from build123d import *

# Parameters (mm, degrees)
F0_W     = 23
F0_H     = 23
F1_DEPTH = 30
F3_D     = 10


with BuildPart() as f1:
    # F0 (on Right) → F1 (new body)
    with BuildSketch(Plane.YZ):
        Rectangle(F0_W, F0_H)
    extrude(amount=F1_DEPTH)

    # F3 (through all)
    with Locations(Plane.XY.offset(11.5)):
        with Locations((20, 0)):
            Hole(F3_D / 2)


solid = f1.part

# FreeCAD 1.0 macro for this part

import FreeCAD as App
import Part
import Sketcher
from FreeCAD import Vector

doc = App.newDocument("Part")
body = doc.addObject("PartDesign::Body", "Body")

sketch1 = body.newObject("Sketcher::SketchObject", "Sketch")
sketch1.AttachmentSupport = (doc.getObject("YZ_Plane"), [""])
sketch1.MapMode = "FlatFace"
sketch1.addGeometry(Part.LineSegment(Vector(-11.5, 11.5, 0), Vector(-11.5, -11.5, 0)), False)
sketch1.addGeometry(Part.LineSegment(Vector(-11.5, -11.5, 0), Vector(11.5, -11.5, 0)), False)
sketch1.addGeometry(Part.LineSegment(Vector(11.5, -11.5, 0), Vector(11.5, 11.5, 0)), False)
sketch1.addGeometry(Part.LineSegment(Vector(11.5, 11.5, 0), Vector(-11.5, 11.5, 0)), False)
sketch1.addConstraint(Sketcher.Constraint("Coincident", 0, 2, 1, 1))
sketch1.addConstraint(Sketcher.Constraint("Coincident", 1, 2, 2, 1))
sketch1.addConstraint(Sketcher.Constraint("Coincident", 2, 2, 3, 1))
sketch1.addConstraint(Sketcher.Constraint("Coincident", 3, 2, 0, 1))
sketch1.addConstraint(Sketcher.Constraint("Vertical", 0))
sketch1.addConstraint(Sketcher.Constraint("Horizontal", 1))
sketch1.addConstraint(Sketcher.Constraint("Vertical", 2))
sketch1.addConstraint(Sketcher.Constraint("Horizontal", 3))
sketch1.addConstraint(Sketcher.Constraint("Symmetric", 0, 2, 2, 2, -1, 1))
sketch1.addConstraint(Sketcher.Constraint("Equal", 3, 0))
sketch1.addConstraint(Sketcher.Constraint("DistanceX", 1, 1, 1, 2, 23.0))
pad1 = body.newObject("PartDesign::Pad", "Pad")
pad1.Profile = sketch1
pad1.Length = 30

sketch2 = body.newObject("Sketcher::SketchObject", "Sketch001")
sketch2.AttachmentSupport = (doc.getObject("XY_Plane"), [""])
sketch2.MapMode = "FlatFace"
sketch2.AttachmentOffset = App.Placement(Vector(0, 0, 11.5), App.Rotation())
sketch2.addGeometry(Part.Circle(Vector(20, 0, 0), Vector(0, 0, 1), 5), False)
sketch2.addConstraint(Sketcher.Constraint("PointOnObject", 0, 3, -1))
sketch2.addConstraint(Sketcher.Constraint("Diameter", 0, 10.0))
sketch2.addConstraint(Sketcher.Constraint("DistanceX", -1, 1, 0, 3, 20.0))
doc.recompute()
hole = body.newObject("PartDesign::Hole", "Hole")
hole.Profile = sketch2
hole.ThreadType = "None"
hole.Diameter = 10
hole.DepthType = "ThroughAll"

doc.recompute()
